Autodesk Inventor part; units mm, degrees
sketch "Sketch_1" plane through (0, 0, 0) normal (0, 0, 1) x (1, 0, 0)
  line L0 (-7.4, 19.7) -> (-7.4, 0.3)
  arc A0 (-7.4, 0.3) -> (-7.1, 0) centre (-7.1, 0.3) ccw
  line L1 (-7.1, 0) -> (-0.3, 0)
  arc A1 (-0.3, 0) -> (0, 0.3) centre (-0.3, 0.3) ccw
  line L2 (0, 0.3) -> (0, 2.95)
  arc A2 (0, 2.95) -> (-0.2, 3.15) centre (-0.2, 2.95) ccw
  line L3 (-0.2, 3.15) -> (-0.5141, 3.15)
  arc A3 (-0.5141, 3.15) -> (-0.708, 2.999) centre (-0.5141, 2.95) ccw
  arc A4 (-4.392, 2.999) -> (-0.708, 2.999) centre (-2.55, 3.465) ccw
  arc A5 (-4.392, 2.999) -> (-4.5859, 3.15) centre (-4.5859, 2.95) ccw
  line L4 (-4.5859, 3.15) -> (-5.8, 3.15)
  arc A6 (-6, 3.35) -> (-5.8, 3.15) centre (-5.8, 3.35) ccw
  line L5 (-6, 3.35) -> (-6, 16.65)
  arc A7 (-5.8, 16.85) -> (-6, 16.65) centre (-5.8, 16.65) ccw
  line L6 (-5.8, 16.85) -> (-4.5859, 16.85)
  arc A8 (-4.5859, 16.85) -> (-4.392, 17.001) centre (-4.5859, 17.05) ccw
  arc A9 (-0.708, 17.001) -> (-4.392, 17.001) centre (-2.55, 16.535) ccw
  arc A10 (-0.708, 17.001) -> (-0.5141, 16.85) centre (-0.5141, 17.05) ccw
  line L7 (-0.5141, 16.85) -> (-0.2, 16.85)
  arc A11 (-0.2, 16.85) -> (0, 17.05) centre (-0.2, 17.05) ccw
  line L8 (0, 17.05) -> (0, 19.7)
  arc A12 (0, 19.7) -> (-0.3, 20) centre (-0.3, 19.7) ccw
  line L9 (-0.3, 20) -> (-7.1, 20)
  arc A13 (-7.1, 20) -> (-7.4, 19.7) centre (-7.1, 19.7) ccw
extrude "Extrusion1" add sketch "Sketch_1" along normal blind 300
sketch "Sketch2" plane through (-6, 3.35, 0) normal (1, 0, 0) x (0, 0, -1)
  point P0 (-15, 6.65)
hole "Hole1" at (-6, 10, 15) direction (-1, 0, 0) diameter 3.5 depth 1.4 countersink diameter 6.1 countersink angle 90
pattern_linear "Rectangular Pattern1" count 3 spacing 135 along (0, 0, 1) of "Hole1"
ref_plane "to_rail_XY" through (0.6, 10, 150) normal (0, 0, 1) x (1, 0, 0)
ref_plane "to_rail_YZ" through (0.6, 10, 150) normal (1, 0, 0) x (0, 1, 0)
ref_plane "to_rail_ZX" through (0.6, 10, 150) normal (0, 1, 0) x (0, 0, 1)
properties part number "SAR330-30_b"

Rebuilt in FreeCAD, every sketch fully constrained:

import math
import FreeCAD as App
import Part
import Sketcher
from FreeCAD import Vector

doc = App.newDocument("Part")
body = doc.addObject("PartDesign::Body", "Body")

# Sketch on XY plane
sketch1 = body.newObject("Sketcher::SketchObject", "Sketch")
sketch1.AttachmentSupport = (doc.getObject("XY_Plane"), [""])
sketch1.MapMode = "FlatFace"
sketch1.addGeometry([
    Part.ArcOfCircle(Part.Circle(Vector(-7.1, 19.7, 0), Vector(0, 0, 1), 0.3), math.radians(90), math.radians(180)),  # 0
    Part.LineSegment(Vector(-7.4, 19.7, 0), Vector(-7.4, 0.3, 0)),  # 1
    Part.ArcOfCircle(Part.Circle(Vector(-7.1, 0.3, 0), Vector(0, 0, 1), 0.3), math.radians(180), math.radians(270)),  # 2
    Part.LineSegment(Vector(-7.1, 0, 0), Vector(-0.3, 0, 0)),  # 3
    Part.ArcOfCircle(Part.Circle(Vector(-0.3, 0.3, 0), Vector(0, 0, 1), 0.3), math.radians(-90), math.radians(0)),  # 4
    Part.LineSegment(Vector(0, 0.3, 0), Vector(0, 2.95, 0)),  # 5
    Part.ArcOfCircle(Part.Circle(Vector(-0.2, 2.95, 0), Vector(0, 0, 1), 0.2), math.radians(0), math.radians(90)),  # 6
    Part.LineSegment(Vector(-0.2, 3.15, 0), Vector(-0.5141, 3.15, 0)),  # 7
    Part.ArcOfCircle(Part.Circle(Vector(-0.5141, 2.95, 0), Vector(0, 0, 1), 0.2), math.radians(90), math.radians(165.817842)),  # 8
    Part.ArcOfCircle(Part.Circle(Vector(-2.55, 3.465, 0), Vector(0, 0, 1), 1.900032), math.radians(-165.802855), math.radians(-14.197145)),  # 9
    Part.ArcOfCircle(Part.Circle(Vector(-4.5859, 2.95, 0), Vector(0, 0, 1), 0.199996), math.radians(14.182158), math.radians(90)),  # 10
    Part.LineSegment(Vector(-4.5859, 3.15, 0), Vector(-5.8, 3.15, 0)),  # 11
    Part.ArcOfCircle(Part.Circle(Vector(-5.8, 3.35, 0), Vector(0, 0, 1), 0.2), math.radians(180), math.radians(270)),  # 12
    Part.LineSegment(Vector(-6, 3.35, 0), Vector(-6, 16.65, 0)),  # 13
    Part.ArcOfCircle(Part.Circle(Vector(-5.8, 16.65, 0), Vector(0, 0, 1), 0.2), math.radians(90), math.radians(180)),  # 14
    Part.LineSegment(Vector(-5.8, 16.85, 0), Vector(-4.5859, 16.85, 0)),  # 15
    Part.ArcOfCircle(Part.Circle(Vector(-4.5859, 17.05, 0), Vector(0, 0, 1), 0.2), math.radians(-90), math.radians(-14.182158)),  # 16
    Part.ArcOfCircle(Part.Circle(Vector(-2.55, 16.535, 0), Vector(0, 0, 1), 1.900032), math.radians(14.197145), math.radians(165.802855)),  # 17
    Part.ArcOfCircle(Part.Circle(Vector(-0.5141, 17.05, 0), Vector(0, 0, 1), 0.199996), math.radians(-165.817842), math.radians(-90)),  # 18
    Part.LineSegment(Vector(-0.5141, 16.85, 0), Vector(-0.2, 16.85, 0)),  # 19
    Part.ArcOfCircle(Part.Circle(Vector(-0.2, 17.05, 0), Vector(0, 0, 1), 0.2), math.radians(-90), math.radians(0)),  # 20
    Part.LineSegment(Vector(0, 17.05, 0), Vector(0, 19.7, 0)),  # 21
    Part.ArcOfCircle(Part.Circle(Vector(-0.3, 19.7, 0), Vector(0, 0, 1), 0.3), math.radians(0), math.radians(90)),  # 22
    Part.LineSegment(Vector(-0.3, 20, 0), Vector(-7.1, 20, 0)),  # 23
], False)
sketch1.addConstraint([
    Sketcher.Constraint("Tangent", 0, 2, 1, 1),
    Sketcher.Constraint("Tangent", 1, 2, 2, 1),
    Sketcher.Constraint("Tangent", 2, 2, 3, 1),
    Sketcher.Constraint("Tangent", 3, 2, 4, 1),
    Sketcher.Constraint("Tangent", 4, 2, 5, 1),
    Sketcher.Constraint("Tangent", 5, 2, 6, 1),
    Sketcher.Constraint("Tangent", 6, 2, 7, 1),
    Sketcher.Constraint("Tangent", 7, 2, 8, 1),
    Sketcher.Constraint("Tangent", 8, 2, 9, 2),
    Sketcher.Constraint("Tangent", 9, 1, 10, 1),
    Sketcher.Constraint("Tangent", 10, 2, 11, 1),
    Sketcher.Constraint("Tangent", 11, 2, 12, 2),
    Sketcher.Constraint("Tangent", 12, 1, 13, 1),
    Sketcher.Constraint("Tangent", 13, 2, 14, 2),
    Sketcher.Constraint("Tangent", 14, 1, 15, 1),
    Sketcher.Constraint("Tangent", 15, 2, 16, 1),
    Sketcher.Constraint("Tangent", 16, 2, 17, 2),
    Sketcher.Constraint("Tangent", 17, 1, 18, 1),
    Sketcher.Constraint("Tangent", 18, 2, 19, 1),
    Sketcher.Constraint("Tangent", 19, 2, 20, 1),
    Sketcher.Constraint("Tangent", 20, 2, 21, 1),
    Sketcher.Constraint("Tangent", 21, 2, 22, 1),
    Sketcher.Constraint("Tangent", 22, 2, 23, 1),
    Sketcher.Constraint("Tangent", 23, 2, 0, 1),
    Sketcher.Constraint("Vertical", 1),
    Sketcher.Constraint("Horizontal", 3),
    Sketcher.Constraint("Vertical", 5),
    Sketcher.Constraint("Horizontal", 7),
    Sketcher.Constraint("Horizontal", 11),
    Sketcher.Constraint("Vertical", 13),
    Sketcher.Constraint("Horizontal", 15),
    Sketcher.Constraint("Horizontal", 19),
    Sketcher.Constraint("Vertical", 21),
    Sketcher.Constraint("Horizontal", 23),
    Sketcher.Constraint("Equal", 0, 2),
    Sketcher.Constraint("Equal", 2, 4),
    Sketcher.Constraint("Equal", 6, 8),
    Sketcher.Constraint("Equal", 8, 10),
    Sketcher.Constraint("Equal", 10, 12),
    Sketcher.Constraint("Equal", 12, 14),
    Sketcher.Constraint("Equal", 14, 16),
    Sketcher.Constraint("Equal", 9, 17),
    Sketcher.Constraint("Equal", 16, 18),
    Sketcher.Constraint("Equal", 18, 20),
    Sketcher.Constraint("Equal", 4, 22),
    Sketcher.Constraint("PointOnObject", 2, 2, -1),
    Sketcher.Constraint("PointOnObject", 4, 2, -2),
    Sketcher.Constraint("PointOnObject", 20, 2, -2),
    Sketcher.Constraint("Horizontal", 8, 3, 10, 3),
    Sketcher.Constraint("Horizontal", 16, 3, 18, 3),
    Sketcher.Constraint("Vertical", 10, 3, 16, 3),
    Sketcher.Constraint("Vertical", 9, 3, 17, 3),
    Sketcher.Constraint("Equal", 5, 21),
    Sketcher.Constraint("Radius", 0, 0.3),
    Sketcher.Constraint("Radius", 6, 0.2),
    Sketcher.Constraint("Radius", 9, 1.9),
    Sketcher.Constraint("DistanceX", 3, 1, 3, 2, 6.8),
    Sketcher.Constraint("DistanceY", 1, 2, 1, 1, 19.4),
    Sketcher.Constraint("DistanceY", 13, 1, 13, 2, 13.3),
    Sketcher.Constraint("DistanceX", 12, 1, -1, 1, 6.0),
    Sketcher.Constraint("DistanceX", 7, 2, 7, 1, 0.314),
    Sketcher.Constraint("DistanceX", 11, 2, 11, 1, 1.214),
])
pad1 = body.newObject("PartDesign::Pad", "Pad")
pad1.Profile = sketch1
pad1.Length = 300

# Sketch on YZ plane
sketch2 = body.newObject("Sketcher::SketchObject", "Sketch001")
sketch2.AttachmentSupport = (doc.getObject("YZ_Plane"), [""])
sketch2.MapMode = "FlatFace"
sketch2.AttachmentOffset = App.Placement(Vector(0, 0, -6), App.Rotation())
sketch2.addGeometry(Part.Circle(Vector(10, 15, 0), Vector(0, 0, 1), 1.75), False)
sketch2.addConstraint([
    Sketcher.Constraint("Diameter", 0, 3.5),
    Sketcher.Constraint("DistanceX", -1, 1, 0, 3, 10.0),
    Sketcher.Constraint("DistanceY", -1, 1, 0, 3, 15.0),
])
doc.recompute()
hole = body.newObject("PartDesign::Hole", "Hole")
hole.Profile = sketch2
hole.ThreadType = "None"
hole.Diameter = 3.5
hole.DepthType = "Dimension"
hole.Depth = 1.4
hole.DrillPoint = "Flat"
hole.HoleCutType = "Countersink"
hole.HoleCutDiameter = 6.1
hole.HoleCutCountersinkAngle = 90
doc.recompute()

linearpattern = body.newObject("PartDesign::LinearPattern", "LinearPattern")
linearpattern.Originals = [hole]
linearpattern.Direction = (doc.getObject("Z_Axis"), [""])
linearpattern.Mode = "offset"
linearpattern.Offset = 135
linearpattern.Occurrences = 3
body.Tip = linearpattern

doc.recompute()
